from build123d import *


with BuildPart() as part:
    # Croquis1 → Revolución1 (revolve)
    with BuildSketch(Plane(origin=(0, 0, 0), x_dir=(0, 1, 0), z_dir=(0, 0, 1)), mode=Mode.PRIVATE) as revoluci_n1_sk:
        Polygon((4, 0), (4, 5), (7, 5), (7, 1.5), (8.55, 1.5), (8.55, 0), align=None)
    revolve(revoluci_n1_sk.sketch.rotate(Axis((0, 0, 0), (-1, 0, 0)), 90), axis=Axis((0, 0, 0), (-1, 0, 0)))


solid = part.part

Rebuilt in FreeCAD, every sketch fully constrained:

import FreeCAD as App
import Part
import Sketcher
Q = App.Units.Quantity

doc = App.newDocument("Part")
params = doc.addObject("Spreadsheet::Sheet", "Params")
for row, (alias, value) in enumerate([
    ("sketch1_width", "5 mm"),
    ("sketch1_height", "3 mm"),
    ("sketch1_width2", "1.5 mm"),
    ("sketch1_height2", "4.55 mm"),
    ("revolution_angle", "360 deg"),
], start=1):
    params.set(f"A{row}", alias)
    params.set(f"B{row}", "=" + value)
    params.setAlias(f"B{row}", alias)

body = doc.addObject("PartDesign::Body", "Body")

# Sketch on XY plane
sketch1 = doc.addObject("Sketcher::SketchObject", "Sketch")
body.addObject(sketch1)
sketch1.AttachmentSupport = (doc.XY_Plane, [""])
sketch1.MapMode = "FlatFace"
sketch1.addGeometry([
    Part.LineSegment(App.Vector(-5, 4, 0), App.Vector(0, 4, 0)),  # 0
    Part.LineSegment(App.Vector(0, 4, 0), App.Vector(0, 8.6, 0)),  # 1
    Part.LineSegment(App.Vector(0, 8.6, 0), App.Vector(-1.5, 8.6, 0)),  # 2
    Part.LineSegment(App.Vector(-1.5, 8.6, 0), App.Vector(-1.5, 7, 0)),  # 3
    Part.LineSegment(App.Vector(-1.5, 7, 0), App.Vector(-5, 7, 0)),  # 4
    Part.LineSegment(App.Vector(-5, 7, 0), App.Vector(-5, 4, 0)),  # 5
], False)
sketch1.addConstraint([
    Sketcher.Constraint("Coincident", 0, 2, 1, 1),
    Sketcher.Constraint("Coincident", 1, 2, 2, 1),
    Sketcher.Constraint("Coincident", 2, 2, 3, 1),
    Sketcher.Constraint("Coincident", 3, 2, 4, 1),
    Sketcher.Constraint("Coincident", 4, 2, 5, 1),
    Sketcher.Constraint("Coincident", 5, 2, 0, 1),
    Sketcher.Constraint("Horizontal", 0),
    Sketcher.Constraint("Vertical", 1),
    Sketcher.Constraint("Horizontal", 2),
    Sketcher.Constraint("Vertical", 3),
    Sketcher.Constraint("Horizontal", 4),
    Sketcher.Constraint("Vertical", 5),
    Sketcher.Constraint("PointOnObject", 0, 2, -2),
    Sketcher.Constraint("DistanceX", 0, 1, 0, 2, Q("5 mm")),
    Sketcher.Constraint("DistanceY", 5, 2, 5, 1, Q("3 mm")),
    Sketcher.Constraint("DistanceX", 2, 2, 2, 1, Q("1.5 mm")),
    Sketcher.Constraint("DistanceY", -1, 1, 0, 2, Q("4 mm")),
    Sketcher.Constraint("DistanceY", 1, 1, 1, 2, Q("4.55 mm")),
])
sketch1.setExpression("Constraints[13]", "Params.sketch1_width")
sketch1.setExpression("Constraints[14]", "Params.sketch1_height")
sketch1.setExpression("Constraints[15]", "Params.sketch1_width2")
sketch1.setExpression("Constraints[17]", "Params.sketch1_height2")
revolution = doc.addObject("PartDesign::Revolution", "Revolution")
body.addObject(revolution)
revolution.Profile = sketch1
revolution.ReferenceAxis = (sketch1, ["H_Axis"])
revolution.setExpression("Angle", "Params.revolution_angle")

doc.recompute()
